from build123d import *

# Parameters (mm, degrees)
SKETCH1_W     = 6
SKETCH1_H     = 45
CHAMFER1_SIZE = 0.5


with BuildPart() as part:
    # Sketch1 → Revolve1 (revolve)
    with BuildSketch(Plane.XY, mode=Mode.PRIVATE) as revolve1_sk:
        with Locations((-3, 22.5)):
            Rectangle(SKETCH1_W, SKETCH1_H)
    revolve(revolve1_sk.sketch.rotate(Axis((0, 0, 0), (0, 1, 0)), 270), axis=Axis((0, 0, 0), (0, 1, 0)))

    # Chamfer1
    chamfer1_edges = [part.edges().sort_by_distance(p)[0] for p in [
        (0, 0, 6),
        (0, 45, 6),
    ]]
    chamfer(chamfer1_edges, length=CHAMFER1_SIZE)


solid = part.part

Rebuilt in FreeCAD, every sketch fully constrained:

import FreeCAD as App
import Part
import Sketcher

V = App.Vector


def edges_at(feature, points):
    """Names of the edges that pass closest to the given points."""
    edges = feature.Shape.Edges
    near = lambda p: min(range(len(edges)), key=lambda i: edges[i].distToShape(Part.Vertex(*p))[0])
    return sorted({f"Edge{near(p) + 1}" for p in points})

doc = App.newDocument("Part")
body = doc.addObject("PartDesign::Body", "Body")

sketch1 = body.newObject("Sketcher::SketchObject", "Sketch")
sketch1.AttachmentSupport = (doc.getObject("XY_Plane"), [""])
sketch1.MapMode = "FlatFace"
sketch1.addGeometry([
    Part.LineSegment(V(-6, 45, 0), V(-6, 0, 0)),
    Part.LineSegment(V(-6, 0, 0), V(0, 0, 0)),
    Part.LineSegment(V(0, 0, 0), V(0, 45, 0)),
    Part.LineSegment(V(0, 45, 0), V(-6, 45, 0)),
], False)
sketch1.addConstraint([
    Sketcher.Constraint("Coincident", 0, 2, 1, 1),
    Sketcher.Constraint("Coincident", 1, 2, 2, 1),
    Sketcher.Constraint("Coincident", 2, 2, 3, 1),
    Sketcher.Constraint("Coincident", 3, 2, 0, 1),
    Sketcher.Constraint("Vertical", 0),
    Sketcher.Constraint("Horizontal", 1),
    Sketcher.Constraint("Vertical", 2),
    Sketcher.Constraint("Horizontal", 3),
    Sketcher.Constraint("Coincident", 1, 2, -1, 1),
    Sketcher.Constraint("DistanceX", 1, 1, 1, 2, 6.0),
    Sketcher.Constraint("DistanceY", 0, 2, 0, 1, 45.0),
])
revolution = body.newObject("PartDesign::Revolution", "Revolution")
revolution.Profile = sketch1
revolution.ReferenceAxis = (sketch1, ["V_Axis"])
revolution.Angle = 360
doc.recompute()

chamfer = body.newObject("PartDesign::Chamfer", "Chamfer")
chamfer.Base = (revolution, edges_at(revolution, [(0, 0, 6), (0, 45, 6)]))
chamfer.Size = 0.5

doc.recompute()
